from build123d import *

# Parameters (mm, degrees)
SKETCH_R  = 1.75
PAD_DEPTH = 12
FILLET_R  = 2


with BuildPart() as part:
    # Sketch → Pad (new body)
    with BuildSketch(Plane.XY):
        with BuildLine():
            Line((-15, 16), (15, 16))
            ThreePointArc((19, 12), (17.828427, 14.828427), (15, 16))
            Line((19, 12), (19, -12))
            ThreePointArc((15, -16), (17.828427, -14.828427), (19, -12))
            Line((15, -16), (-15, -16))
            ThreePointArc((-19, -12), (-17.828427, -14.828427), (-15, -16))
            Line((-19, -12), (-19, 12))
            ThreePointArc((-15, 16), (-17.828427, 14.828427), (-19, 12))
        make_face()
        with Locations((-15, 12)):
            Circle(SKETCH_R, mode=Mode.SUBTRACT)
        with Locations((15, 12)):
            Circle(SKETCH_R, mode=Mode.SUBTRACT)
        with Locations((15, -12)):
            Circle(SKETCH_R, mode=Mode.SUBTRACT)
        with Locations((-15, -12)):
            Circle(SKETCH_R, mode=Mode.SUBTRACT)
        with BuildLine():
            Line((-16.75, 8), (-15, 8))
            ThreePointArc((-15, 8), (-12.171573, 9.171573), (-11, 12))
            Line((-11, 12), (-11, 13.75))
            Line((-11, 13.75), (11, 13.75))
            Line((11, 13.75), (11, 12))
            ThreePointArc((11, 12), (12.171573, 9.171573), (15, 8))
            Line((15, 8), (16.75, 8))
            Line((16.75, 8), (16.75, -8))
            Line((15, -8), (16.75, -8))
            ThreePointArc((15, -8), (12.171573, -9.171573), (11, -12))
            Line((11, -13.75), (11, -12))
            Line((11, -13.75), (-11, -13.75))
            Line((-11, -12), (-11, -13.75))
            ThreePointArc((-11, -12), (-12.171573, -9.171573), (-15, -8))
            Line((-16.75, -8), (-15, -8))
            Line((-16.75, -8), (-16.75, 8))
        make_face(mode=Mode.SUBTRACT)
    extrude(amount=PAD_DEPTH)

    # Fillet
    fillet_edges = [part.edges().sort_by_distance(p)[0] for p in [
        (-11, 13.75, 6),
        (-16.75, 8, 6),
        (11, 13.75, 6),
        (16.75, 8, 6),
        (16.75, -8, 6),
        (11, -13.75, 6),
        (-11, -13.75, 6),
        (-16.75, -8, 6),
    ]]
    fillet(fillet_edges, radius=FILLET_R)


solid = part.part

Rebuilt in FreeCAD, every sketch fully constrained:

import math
import FreeCAD as App
import Part
import Sketcher
from FreeCAD import Vector
Q = App.Units.Quantity


def edges_at(feature, points):
    """Names of the edges that pass closest to the given points."""
    edges = feature.Shape.Edges
    near = lambda p: min(range(len(edges)), key=lambda i: edges[i].distToShape(Part.Vertex(*p))[0])
    return sorted({f"Edge{near(p) + 1}" for p in points})

doc = App.newDocument("Part")
params = doc.addObject("Spreadsheet::Sheet", "Params")
for row, (alias, value) in enumerate([
    ("sketch1_radius", "4 mm"),
    ("sketch1_diameter", "3.5 mm"),
    ("sketch1_width", "30 mm"),
    ("sketch1_height", "24 mm"),
    ("sketch1_width2", "1.75 mm"),
    ("pad1_length", "12 mm"),
    ("fillet_radius", "2 mm"),
], start=1):
    params.set(f"A{row}", alias)
    params.set(f"B{row}", "=" + value)
    params.setAlias(f"B{row}", alias)

body = doc.addObject("PartDesign::Body", "Body")

# Sketch on XY plane
sketch1 = body.newObject("Sketcher::SketchObject", "Sketch")
sketch1.AttachmentSupport = (doc.getObject("XY_Plane"), [""])
sketch1.MapMode = "FlatFace"
sketch1.addGeometry([
    Part.LineSegment(Vector(15, 16, 0), Vector(-15, 16, 0)),  # 0
    Part.ArcOfCircle(Part.Circle(Vector(-15, 12, 0), Vector(0, 0, 1), 4), math.radians(90.000006), math.radians(179.999994)),  # 1
    Part.LineSegment(Vector(-19, 12, 0), Vector(-19, -12, 0)),  # 2
    Part.ArcOfCircle(Part.Circle(Vector(-15, -12, 0), Vector(0, 0, 1), 4), math.radians(-179.999994), math.radians(-90.000006)),  # 3
    Part.LineSegment(Vector(-15, -16, 0), Vector(15, -16, 0)),  # 4
    Part.ArcOfCircle(Part.Circle(Vector(15, -12, 0), Vector(0, 0, 1), 4), math.radians(-89.999994), math.radians(-0.000006)),  # 5
    Part.LineSegment(Vector(19, -12, 0), Vector(19, 12, 0)),  # 6
    Part.ArcOfCircle(Part.Circle(Vector(15, 12, 0), Vector(0, 0, 1), 4), math.radians(0.000006), math.radians(89.999994)),  # 7
    Part.Circle(Vector(15, -12, 0), Vector(0, 0, 1), 1.75),  # 8
    Part.Circle(Vector(-15, -12, 0), Vector(0, 0, 1), 1.75),  # 9
    Part.Circle(Vector(15, 12, 0), Vector(0, 0, 1), 1.75),  # 10
    Part.LineSegment(Vector(-16.75, 8, 0), Vector(-15, 8, 0)),  # 11
    Part.ArcOfCircle(Part.Circle(Vector(-15, 12, 0), Vector(0, 0, 1), 4), math.radians(-89.999994), math.radians(-0.000006)),  # 12
    Part.LineSegment(Vector(-11, 12, 0), Vector(-11, 13.75, 0)),  # 13
    Part.LineSegment(Vector(-11, 13.75, 0), Vector(11, 13.75, 0)),  # 14
    Part.LineSegment(Vector(11, 13.75, 0), Vector(11, 12, 0)),  # 15
    Part.ArcOfCircle(Part.Circle(Vector(15, 12, 0), Vector(0, 0, 1), 4), math.radians(-179.999994), math.radians(-90.000006)),  # 16
    Part.LineSegment(Vector(15, 8, 0), Vector(16.75, 8, 0)),  # 17
    Part.LineSegment(Vector(16.75, 8, 0), Vector(16.75, -8, 0)),  # 18
    Part.LineSegment(Vector(16.75, -8, 0), Vector(15, -8, 0)),  # 19
    Part.ArcOfCircle(Part.Circle(Vector(15, -12, 0), Vector(0, 0, 1), 4), math.radians(90.000006), math.radians(179.999994)),  # 20
    Part.LineSegment(Vector(11, -12, 0), Vector(11, -13.75, 0)),  # 21
    Part.LineSegment(Vector(11, -13.75, 0), Vector(-11, -13.75, 0)),  # 22
    Part.LineSegment(Vector(-11, -13.75, 0), Vector(-11, -12, 0)),  # 23
    Part.ArcOfCircle(Part.Circle(Vector(-15, -12, 0), Vector(0, 0, 1), 4), math.radians(0.000006), math.radians(89.999994)),  # 24
    Part.LineSegment(Vector(-15, -8, 0), Vector(-16.75, -8, 0)),  # 25
    Part.LineSegment(Vector(-16.75, -8, 0), Vector(-16.75, 8, 0)),  # 26
    Part.Circle(Vector(-15, 12, 0), Vector(0, 0, 1), 1.75),  # 27
], False)
sketch1.addConstraint([
    Sketcher.Constraint("Tangent", 0, 2, 1, 1),
    Sketcher.Constraint("Tangent", 1, 2, 2, 1),
    Sketcher.Constraint("Tangent", 2, 2, 3, 1),
    Sketcher.Constraint("Tangent", 3, 2, 4, 1),
    Sketcher.Constraint("Tangent", 4, 2, 5, 1),
    Sketcher.Constraint("Tangent", 5, 2, 6, 1),
    Sketcher.Constraint("Tangent", 6, 2, 7, 1),
    Sketcher.Constraint("Tangent", 7, 2, 0, 1),
    Sketcher.Constraint("Tangent", 11, 2, 12, 1),
    Sketcher.Constraint("Tangent", 12, 2, 13, 1),
    Sketcher.Constraint("Coincident", 13, 2, 14, 1),
    Sketcher.Constraint("Coincident", 14, 2, 15, 1),
    Sketcher.Constraint("Tangent", 15, 2, 16, 1),
    Sketcher.Constraint("Tangent", 16, 2, 17, 1),
    Sketcher.Constraint("Coincident", 17, 2, 18, 1),
    Sketcher.Constraint("Coincident", 18, 2, 19, 1),
    Sketcher.Constraint("Tangent", 19, 2, 20, 1),
    Sketcher.Constraint("Tangent", 20, 2, 21, 1),
    Sketcher.Constraint("Coincident", 21, 2, 22, 1),
    Sketcher.Constraint("Coincident", 22, 2, 23, 1),
    Sketcher.Constraint("Tangent", 23, 2, 24, 1),
    Sketcher.Constraint("Tangent", 24, 2, 25, 1),
    Sketcher.Constraint("Coincident", 25, 2, 26, 1),
    Sketcher.Constraint("Coincident", 26, 2, 11, 1),
    Sketcher.Constraint("Horizontal", 0),
    Sketcher.Constraint("Vertical", 2),
    Sketcher.Constraint("Horizontal", 4),
    Sketcher.Constraint("Vertical", 6),
    Sketcher.Constraint("Horizontal", 11),
    Sketcher.Constraint("Vertical", 13),
    Sketcher.Constraint("Horizontal", 14),
    Sketcher.Constraint("Vertical", 15),
    Sketcher.Constraint("Horizontal", 17),
    Sketcher.Constraint("Vertical", 18),
    Sketcher.Constraint("Horizontal", 19),
    Sketcher.Constraint("Vertical", 21),
    Sketcher.Constraint("Horizontal", 22),
    Sketcher.Constraint("Vertical", 23),
    Sketcher.Constraint("Horizontal", 25),
    Sketcher.Constraint("Vertical", 26),
    Sketcher.Constraint("Coincident", 8, 3, 5, 3),
    Sketcher.Constraint("Coincident", 9, 3, 3, 3),
    Sketcher.Constraint("Coincident", 10, 3, 7, 3),
    Sketcher.Constraint("Coincident", 12, 3, 1, 3),
    Sketcher.Constraint("Coincident", 16, 3, 7, 3),
    Sketcher.Constraint("Coincident", 20, 3, 5, 3),
    Sketcher.Constraint("Coincident", 24, 3, 3, 3),
    Sketcher.Constraint("Coincident", 27, 3, 1, 3),
    Sketcher.Constraint("Equal", 1, 3),
    Sketcher.Constraint("Equal", 3, 5),
    Sketcher.Constraint("Equal", 5, 7),
    Sketcher.Constraint("Equal", 8, 9),
    Sketcher.Constraint("Equal", 9, 10),
    Sketcher.Constraint("Equal", 7, 12),
    Sketcher.Constraint("Equal", 12, 16),
    Sketcher.Constraint("Equal", 16, 20),
    Sketcher.Constraint("Equal", 20, 24),
    Sketcher.Constraint("Equal", 10, 27),
    Sketcher.Constraint("Symmetric", 1, 3, 5, 3, -1, 1),
    Sketcher.Constraint("Equal", 11, 17),
    Sketcher.Constraint("Equal", 25, 13),
    Sketcher.Constraint("Equal", 15, 21),
    Sketcher.Constraint("Radius", 1, Q("4 mm")),
    Sketcher.Constraint("Diameter", 8, Q("3.5 mm")),
    Sketcher.Constraint("DistanceX", 0, 2, 0, 1, Q("30 mm")),
    Sketcher.Constraint("DistanceY", 2, 2, 2, 1, Q("24 mm")),
    Sketcher.Constraint("DistanceX", 11, 1, 11, 2, Q("1.75 mm")),
])
sketch1.setExpression("Constraints[62]", "Params.sketch1_radius")
sketch1.setExpression("Constraints[63]", "Params.sketch1_diameter")
sketch1.setExpression("Constraints[64]", "Params.sketch1_width")
sketch1.setExpression("Constraints[65]", "Params.sketch1_height")
sketch1.setExpression("Constraints[66]", "Params.sketch1_width2")
pad1 = body.newObject("PartDesign::Pad", "Pad")
pad1.Profile = sketch1
pad1.setExpression("Length", "Params.pad1_length")
doc.recompute()

fillet = body.newObject("PartDesign::Fillet", "Fillet")
fillet.Base = (pad1, edges_at(pad1, [
    (-11, 13.75, 6),
    (-16.75, 8, 6),
    (11, 13.75, 6),
    (16.75, 8, 6),
    (16.75, -8, 6),
    (11, -13.75, 6),
    (-11, -13.75, 6),
    (-16.75, -8, 6),
]))
fillet.setExpression("Radius", "Params.fillet_radius")

doc.recompute()
